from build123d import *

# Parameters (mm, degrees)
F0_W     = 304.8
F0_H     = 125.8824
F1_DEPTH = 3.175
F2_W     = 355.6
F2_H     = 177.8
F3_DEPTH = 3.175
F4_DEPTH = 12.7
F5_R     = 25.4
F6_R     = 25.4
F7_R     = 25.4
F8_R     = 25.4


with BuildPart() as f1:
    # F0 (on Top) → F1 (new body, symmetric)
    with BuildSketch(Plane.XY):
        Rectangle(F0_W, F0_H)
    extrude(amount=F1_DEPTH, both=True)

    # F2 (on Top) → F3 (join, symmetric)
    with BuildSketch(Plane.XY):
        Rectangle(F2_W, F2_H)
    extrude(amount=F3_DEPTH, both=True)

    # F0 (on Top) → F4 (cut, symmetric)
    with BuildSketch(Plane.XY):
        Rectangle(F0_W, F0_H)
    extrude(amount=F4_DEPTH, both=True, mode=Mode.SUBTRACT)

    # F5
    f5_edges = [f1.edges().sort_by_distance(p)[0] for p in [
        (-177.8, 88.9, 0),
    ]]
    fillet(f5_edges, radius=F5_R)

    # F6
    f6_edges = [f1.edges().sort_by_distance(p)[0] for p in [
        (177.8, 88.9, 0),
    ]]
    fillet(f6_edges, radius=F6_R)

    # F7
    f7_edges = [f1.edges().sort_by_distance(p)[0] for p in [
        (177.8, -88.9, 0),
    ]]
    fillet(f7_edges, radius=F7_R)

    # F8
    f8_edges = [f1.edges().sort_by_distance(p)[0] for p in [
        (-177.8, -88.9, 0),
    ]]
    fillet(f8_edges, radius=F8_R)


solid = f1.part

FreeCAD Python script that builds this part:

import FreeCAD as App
import Part
import Sketcher

V = App.Vector
Q = App.Units.Quantity


def edges_at(feature, points):
    """Names of the edges that pass closest to the given points."""
    edges = feature.Shape.Edges
    near = lambda p: min(range(len(edges)), key=lambda i: edges[i].distToShape(Part.Vertex(*p))[0])
    return sorted({f"Edge{near(p) + 1}" for p in points})

doc = App.newDocument("Part")
params = doc.addObject("Spreadsheet::Sheet", "Params")
for row, (alias, value) in enumerate([
    ("sketch1_width", "12 in"),
    ("sketch1_height", "4.956 in"),
    ("pad1_length", "0.25 in"),
    ("sketch2_width", "14 in"),
    ("sketch2_height", "7 in"),
    ("pad2_length", "0.25 in"),
    ("sketch3_width", "12 in"),
    ("sketch3_height", "4.956 in"),
    ("pocket1_length", "1 in"),
    ("fillet_radius", "1 in"),
    ("fillet2_radius", "1 in"),
    ("fillet3_radius", "1 in"),
    ("fillet4_radius", "1 in"),
], start=1):
    params.set(f"A{row}", alias)
    params.set(f"B{row}", "=" + value)
    params.setAlias(f"B{row}", alias)

body = doc.addObject("PartDesign::Body", "Body")

# Sketch on XY plane
sketch1 = doc.addObject("Sketcher::SketchObject", "Sketch")
body.addObject(sketch1)
sketch1.AttachmentSupport = (doc.XY_Plane, [""])
sketch1.MapMode = "FlatFace"
sketch1.addGeometry(Part.LineSegment(V(-152.4, 62.9412, 0), V(-152.4, -62.9412, 0)), False)
sketch1.addGeometry(Part.LineSegment(V(-152.4, -62.9412, 0), V(152.4, -62.9412, 0)), False)
sketch1.addGeometry(Part.LineSegment(V(152.4, -62.9412, 0), V(152.4, 62.9412, 0)), False)
sketch1.addGeometry(Part.LineSegment(V(152.4, 62.9412, 0), V(-152.4, 62.9412, 0)), False)
sketch1.addConstraint(Sketcher.Constraint("Coincident", 0, 2, 1, 1))
sketch1.addConstraint(Sketcher.Constraint("Coincident", 1, 2, 2, 1))
sketch1.addConstraint(Sketcher.Constraint("Coincident", 2, 2, 3, 1))
sketch1.addConstraint(Sketcher.Constraint("Coincident", 3, 2, 0, 1))
sketch1.addConstraint(Sketcher.Constraint("Vertical", 0))
sketch1.addConstraint(Sketcher.Constraint("Horizontal", 1))
sketch1.addConstraint(Sketcher.Constraint("Vertical", 2))
sketch1.addConstraint(Sketcher.Constraint("Horizontal", 3))
sketch1.addConstraint(Sketcher.Constraint("Symmetric", 0, 2, 2, 2, -1, 1))
sketch1.addConstraint(Sketcher.Constraint("DistanceX", 1, 1, 1, 2, Q("12 in")))
sketch1.addConstraint(Sketcher.Constraint("DistanceY", 0, 2, 0, 1, Q("4.956 in")))
sketch1.setExpression("Constraints[9]", "Params.sketch1_width")
sketch1.setExpression("Constraints[10]", "Params.sketch1_height")
pad1 = doc.addObject("PartDesign::Pad", "Pad")
body.addObject(pad1)
pad1.Profile = sketch1
pad1.setExpression("Length", "Params.pad1_length")
pad1.Midplane = True

# Sketch on XY plane
sketch2 = doc.addObject("Sketcher::SketchObject", "Sketch001")
body.addObject(sketch2)
sketch2.AttachmentSupport = (doc.XY_Plane, [""])
sketch2.MapMode = "FlatFace"
sketch2.addGeometry(Part.LineSegment(V(-177.8, 88.9, 0), V(-177.8, -88.9, 0)), False)
sketch2.addGeometry(Part.LineSegment(V(-177.8, -88.9, 0), V(177.8, -88.9, 0)), False)
sketch2.addGeometry(Part.LineSegment(V(177.8, -88.9, 0), V(177.8, 88.9, 0)), False)
sketch2.addGeometry(Part.LineSegment(V(177.8, 88.9, 0), V(-177.8, 88.9, 0)), False)
sketch2.addConstraint(Sketcher.Constraint("Coincident", 0, 2, 1, 1))
sketch2.addConstraint(Sketcher.Constraint("Coincident", 1, 2, 2, 1))
sketch2.addConstraint(Sketcher.Constraint("Coincident", 2, 2, 3, 1))
sketch2.addConstraint(Sketcher.Constraint("Coincident", 3, 2, 0, 1))
sketch2.addConstraint(Sketcher.Constraint("Vertical", 0))
sketch2.addConstraint(Sketcher.Constraint("Horizontal", 1))
sketch2.addConstraint(Sketcher.Constraint("Vertical", 2))
sketch2.addConstraint(Sketcher.Constraint("Horizontal", 3))
sketch2.addConstraint(Sketcher.Constraint("Symmetric", 0, 2, 2, 2, -1, 1))
sketch2.addConstraint(Sketcher.Constraint("DistanceX", 1, 1, 1, 2, Q("14 in")))
sketch2.addConstraint(Sketcher.Constraint("DistanceY", 0, 2, 0, 1, Q("7 in")))
sketch2.setExpression("Constraints[9]", "Params.sketch2_width")
sketch2.setExpression("Constraints[10]", "Params.sketch2_height")
pad2 = doc.addObject("PartDesign::Pad", "Pad001")
body.addObject(pad2)
pad2.Profile = sketch2
pad2.setExpression("Length", "Params.pad2_length")
pad2.Midplane = True

# Sketch on XY plane
sketch3 = doc.addObject("Sketcher::SketchObject", "Sketch002")
body.addObject(sketch3)
sketch3.AttachmentSupport = (doc.XY_Plane, [""])
sketch3.MapMode = "FlatFace"
sketch3.addGeometry(Part.LineSegment(V(-152.4, 62.9412, 0), V(-152.4, -62.9412, 0)), False)
sketch3.addGeometry(Part.LineSegment(V(-152.4, -62.9412, 0), V(152.4, -62.9412, 0)), False)
sketch3.addGeometry(Part.LineSegment(V(152.4, -62.9412, 0), V(152.4, 62.9412, 0)), False)
sketch3.addGeometry(Part.LineSegment(V(152.4, 62.9412, 0), V(-152.4, 62.9412, 0)), False)
sketch3.addConstraint(Sketcher.Constraint("Coincident", 0, 2, 1, 1))
sketch3.addConstraint(Sketcher.Constraint("Coincident", 1, 2, 2, 1))
sketch3.addConstraint(Sketcher.Constraint("Coincident", 2, 2, 3, 1))
sketch3.addConstraint(Sketcher.Constraint("Coincident", 3, 2, 0, 1))
sketch3.addConstraint(Sketcher.Constraint("Vertical", 0))
sketch3.addConstraint(Sketcher.Constraint("Horizontal", 1))
sketch3.addConstraint(Sketcher.Constraint("Vertical", 2))
sketch3.addConstraint(Sketcher.Constraint("Horizontal", 3))
sketch3.addConstraint(Sketcher.Constraint("Symmetric", 0, 2, 2, 2, -1, 1))
sketch3.addConstraint(Sketcher.Constraint("DistanceX", 1, 1, 1, 2, Q("12 in")))
sketch3.addConstraint(Sketcher.Constraint("DistanceY", 0, 2, 0, 1, Q("4.956 in")))
sketch3.setExpression("Constraints[9]", "Params.sketch3_width")
sketch3.setExpression("Constraints[10]", "Params.sketch3_height")
pocket1 = doc.addObject("PartDesign::Pocket", "Pocket")
body.addObject(pocket1)
pocket1.Profile = sketch3
pocket1.setExpression("Length", "Params.pocket1_length")
pocket1.Midplane = True
doc.recompute()

fillet = doc.addObject("PartDesign::Fillet", "Fillet")
body.addObject(fillet)
fillet.Base = (pocket1, edges_at(pocket1, [(-177.8, 88.9, 0)]))
fillet.setExpression("Radius", "Params.fillet_radius")
doc.recompute()

fillet2 = doc.addObject("PartDesign::Fillet", "Fillet001")
body.addObject(fillet2)
fillet2.Base = (fillet, edges_at(fillet, [(177.8, 88.9, 0)]))
fillet2.setExpression("Radius", "Params.fillet2_radius")
doc.recompute()

fillet3 = doc.addObject("PartDesign::Fillet", "Fillet002")
body.addObject(fillet3)
fillet3.Base = (fillet2, edges_at(fillet2, [(177.8, -88.9, 0)]))
fillet3.setExpression("Radius", "Params.fillet3_radius")
doc.recompute()

fillet4 = doc.addObject("PartDesign::Fillet", "Fillet003")
body.addObject(fillet4)
fillet4.Base = (fillet3, edges_at(fillet3, [(-177.8, -88.9, 0)]))
fillet4.setExpression("Radius", "Params.fillet4_radius")

doc.recompute()
